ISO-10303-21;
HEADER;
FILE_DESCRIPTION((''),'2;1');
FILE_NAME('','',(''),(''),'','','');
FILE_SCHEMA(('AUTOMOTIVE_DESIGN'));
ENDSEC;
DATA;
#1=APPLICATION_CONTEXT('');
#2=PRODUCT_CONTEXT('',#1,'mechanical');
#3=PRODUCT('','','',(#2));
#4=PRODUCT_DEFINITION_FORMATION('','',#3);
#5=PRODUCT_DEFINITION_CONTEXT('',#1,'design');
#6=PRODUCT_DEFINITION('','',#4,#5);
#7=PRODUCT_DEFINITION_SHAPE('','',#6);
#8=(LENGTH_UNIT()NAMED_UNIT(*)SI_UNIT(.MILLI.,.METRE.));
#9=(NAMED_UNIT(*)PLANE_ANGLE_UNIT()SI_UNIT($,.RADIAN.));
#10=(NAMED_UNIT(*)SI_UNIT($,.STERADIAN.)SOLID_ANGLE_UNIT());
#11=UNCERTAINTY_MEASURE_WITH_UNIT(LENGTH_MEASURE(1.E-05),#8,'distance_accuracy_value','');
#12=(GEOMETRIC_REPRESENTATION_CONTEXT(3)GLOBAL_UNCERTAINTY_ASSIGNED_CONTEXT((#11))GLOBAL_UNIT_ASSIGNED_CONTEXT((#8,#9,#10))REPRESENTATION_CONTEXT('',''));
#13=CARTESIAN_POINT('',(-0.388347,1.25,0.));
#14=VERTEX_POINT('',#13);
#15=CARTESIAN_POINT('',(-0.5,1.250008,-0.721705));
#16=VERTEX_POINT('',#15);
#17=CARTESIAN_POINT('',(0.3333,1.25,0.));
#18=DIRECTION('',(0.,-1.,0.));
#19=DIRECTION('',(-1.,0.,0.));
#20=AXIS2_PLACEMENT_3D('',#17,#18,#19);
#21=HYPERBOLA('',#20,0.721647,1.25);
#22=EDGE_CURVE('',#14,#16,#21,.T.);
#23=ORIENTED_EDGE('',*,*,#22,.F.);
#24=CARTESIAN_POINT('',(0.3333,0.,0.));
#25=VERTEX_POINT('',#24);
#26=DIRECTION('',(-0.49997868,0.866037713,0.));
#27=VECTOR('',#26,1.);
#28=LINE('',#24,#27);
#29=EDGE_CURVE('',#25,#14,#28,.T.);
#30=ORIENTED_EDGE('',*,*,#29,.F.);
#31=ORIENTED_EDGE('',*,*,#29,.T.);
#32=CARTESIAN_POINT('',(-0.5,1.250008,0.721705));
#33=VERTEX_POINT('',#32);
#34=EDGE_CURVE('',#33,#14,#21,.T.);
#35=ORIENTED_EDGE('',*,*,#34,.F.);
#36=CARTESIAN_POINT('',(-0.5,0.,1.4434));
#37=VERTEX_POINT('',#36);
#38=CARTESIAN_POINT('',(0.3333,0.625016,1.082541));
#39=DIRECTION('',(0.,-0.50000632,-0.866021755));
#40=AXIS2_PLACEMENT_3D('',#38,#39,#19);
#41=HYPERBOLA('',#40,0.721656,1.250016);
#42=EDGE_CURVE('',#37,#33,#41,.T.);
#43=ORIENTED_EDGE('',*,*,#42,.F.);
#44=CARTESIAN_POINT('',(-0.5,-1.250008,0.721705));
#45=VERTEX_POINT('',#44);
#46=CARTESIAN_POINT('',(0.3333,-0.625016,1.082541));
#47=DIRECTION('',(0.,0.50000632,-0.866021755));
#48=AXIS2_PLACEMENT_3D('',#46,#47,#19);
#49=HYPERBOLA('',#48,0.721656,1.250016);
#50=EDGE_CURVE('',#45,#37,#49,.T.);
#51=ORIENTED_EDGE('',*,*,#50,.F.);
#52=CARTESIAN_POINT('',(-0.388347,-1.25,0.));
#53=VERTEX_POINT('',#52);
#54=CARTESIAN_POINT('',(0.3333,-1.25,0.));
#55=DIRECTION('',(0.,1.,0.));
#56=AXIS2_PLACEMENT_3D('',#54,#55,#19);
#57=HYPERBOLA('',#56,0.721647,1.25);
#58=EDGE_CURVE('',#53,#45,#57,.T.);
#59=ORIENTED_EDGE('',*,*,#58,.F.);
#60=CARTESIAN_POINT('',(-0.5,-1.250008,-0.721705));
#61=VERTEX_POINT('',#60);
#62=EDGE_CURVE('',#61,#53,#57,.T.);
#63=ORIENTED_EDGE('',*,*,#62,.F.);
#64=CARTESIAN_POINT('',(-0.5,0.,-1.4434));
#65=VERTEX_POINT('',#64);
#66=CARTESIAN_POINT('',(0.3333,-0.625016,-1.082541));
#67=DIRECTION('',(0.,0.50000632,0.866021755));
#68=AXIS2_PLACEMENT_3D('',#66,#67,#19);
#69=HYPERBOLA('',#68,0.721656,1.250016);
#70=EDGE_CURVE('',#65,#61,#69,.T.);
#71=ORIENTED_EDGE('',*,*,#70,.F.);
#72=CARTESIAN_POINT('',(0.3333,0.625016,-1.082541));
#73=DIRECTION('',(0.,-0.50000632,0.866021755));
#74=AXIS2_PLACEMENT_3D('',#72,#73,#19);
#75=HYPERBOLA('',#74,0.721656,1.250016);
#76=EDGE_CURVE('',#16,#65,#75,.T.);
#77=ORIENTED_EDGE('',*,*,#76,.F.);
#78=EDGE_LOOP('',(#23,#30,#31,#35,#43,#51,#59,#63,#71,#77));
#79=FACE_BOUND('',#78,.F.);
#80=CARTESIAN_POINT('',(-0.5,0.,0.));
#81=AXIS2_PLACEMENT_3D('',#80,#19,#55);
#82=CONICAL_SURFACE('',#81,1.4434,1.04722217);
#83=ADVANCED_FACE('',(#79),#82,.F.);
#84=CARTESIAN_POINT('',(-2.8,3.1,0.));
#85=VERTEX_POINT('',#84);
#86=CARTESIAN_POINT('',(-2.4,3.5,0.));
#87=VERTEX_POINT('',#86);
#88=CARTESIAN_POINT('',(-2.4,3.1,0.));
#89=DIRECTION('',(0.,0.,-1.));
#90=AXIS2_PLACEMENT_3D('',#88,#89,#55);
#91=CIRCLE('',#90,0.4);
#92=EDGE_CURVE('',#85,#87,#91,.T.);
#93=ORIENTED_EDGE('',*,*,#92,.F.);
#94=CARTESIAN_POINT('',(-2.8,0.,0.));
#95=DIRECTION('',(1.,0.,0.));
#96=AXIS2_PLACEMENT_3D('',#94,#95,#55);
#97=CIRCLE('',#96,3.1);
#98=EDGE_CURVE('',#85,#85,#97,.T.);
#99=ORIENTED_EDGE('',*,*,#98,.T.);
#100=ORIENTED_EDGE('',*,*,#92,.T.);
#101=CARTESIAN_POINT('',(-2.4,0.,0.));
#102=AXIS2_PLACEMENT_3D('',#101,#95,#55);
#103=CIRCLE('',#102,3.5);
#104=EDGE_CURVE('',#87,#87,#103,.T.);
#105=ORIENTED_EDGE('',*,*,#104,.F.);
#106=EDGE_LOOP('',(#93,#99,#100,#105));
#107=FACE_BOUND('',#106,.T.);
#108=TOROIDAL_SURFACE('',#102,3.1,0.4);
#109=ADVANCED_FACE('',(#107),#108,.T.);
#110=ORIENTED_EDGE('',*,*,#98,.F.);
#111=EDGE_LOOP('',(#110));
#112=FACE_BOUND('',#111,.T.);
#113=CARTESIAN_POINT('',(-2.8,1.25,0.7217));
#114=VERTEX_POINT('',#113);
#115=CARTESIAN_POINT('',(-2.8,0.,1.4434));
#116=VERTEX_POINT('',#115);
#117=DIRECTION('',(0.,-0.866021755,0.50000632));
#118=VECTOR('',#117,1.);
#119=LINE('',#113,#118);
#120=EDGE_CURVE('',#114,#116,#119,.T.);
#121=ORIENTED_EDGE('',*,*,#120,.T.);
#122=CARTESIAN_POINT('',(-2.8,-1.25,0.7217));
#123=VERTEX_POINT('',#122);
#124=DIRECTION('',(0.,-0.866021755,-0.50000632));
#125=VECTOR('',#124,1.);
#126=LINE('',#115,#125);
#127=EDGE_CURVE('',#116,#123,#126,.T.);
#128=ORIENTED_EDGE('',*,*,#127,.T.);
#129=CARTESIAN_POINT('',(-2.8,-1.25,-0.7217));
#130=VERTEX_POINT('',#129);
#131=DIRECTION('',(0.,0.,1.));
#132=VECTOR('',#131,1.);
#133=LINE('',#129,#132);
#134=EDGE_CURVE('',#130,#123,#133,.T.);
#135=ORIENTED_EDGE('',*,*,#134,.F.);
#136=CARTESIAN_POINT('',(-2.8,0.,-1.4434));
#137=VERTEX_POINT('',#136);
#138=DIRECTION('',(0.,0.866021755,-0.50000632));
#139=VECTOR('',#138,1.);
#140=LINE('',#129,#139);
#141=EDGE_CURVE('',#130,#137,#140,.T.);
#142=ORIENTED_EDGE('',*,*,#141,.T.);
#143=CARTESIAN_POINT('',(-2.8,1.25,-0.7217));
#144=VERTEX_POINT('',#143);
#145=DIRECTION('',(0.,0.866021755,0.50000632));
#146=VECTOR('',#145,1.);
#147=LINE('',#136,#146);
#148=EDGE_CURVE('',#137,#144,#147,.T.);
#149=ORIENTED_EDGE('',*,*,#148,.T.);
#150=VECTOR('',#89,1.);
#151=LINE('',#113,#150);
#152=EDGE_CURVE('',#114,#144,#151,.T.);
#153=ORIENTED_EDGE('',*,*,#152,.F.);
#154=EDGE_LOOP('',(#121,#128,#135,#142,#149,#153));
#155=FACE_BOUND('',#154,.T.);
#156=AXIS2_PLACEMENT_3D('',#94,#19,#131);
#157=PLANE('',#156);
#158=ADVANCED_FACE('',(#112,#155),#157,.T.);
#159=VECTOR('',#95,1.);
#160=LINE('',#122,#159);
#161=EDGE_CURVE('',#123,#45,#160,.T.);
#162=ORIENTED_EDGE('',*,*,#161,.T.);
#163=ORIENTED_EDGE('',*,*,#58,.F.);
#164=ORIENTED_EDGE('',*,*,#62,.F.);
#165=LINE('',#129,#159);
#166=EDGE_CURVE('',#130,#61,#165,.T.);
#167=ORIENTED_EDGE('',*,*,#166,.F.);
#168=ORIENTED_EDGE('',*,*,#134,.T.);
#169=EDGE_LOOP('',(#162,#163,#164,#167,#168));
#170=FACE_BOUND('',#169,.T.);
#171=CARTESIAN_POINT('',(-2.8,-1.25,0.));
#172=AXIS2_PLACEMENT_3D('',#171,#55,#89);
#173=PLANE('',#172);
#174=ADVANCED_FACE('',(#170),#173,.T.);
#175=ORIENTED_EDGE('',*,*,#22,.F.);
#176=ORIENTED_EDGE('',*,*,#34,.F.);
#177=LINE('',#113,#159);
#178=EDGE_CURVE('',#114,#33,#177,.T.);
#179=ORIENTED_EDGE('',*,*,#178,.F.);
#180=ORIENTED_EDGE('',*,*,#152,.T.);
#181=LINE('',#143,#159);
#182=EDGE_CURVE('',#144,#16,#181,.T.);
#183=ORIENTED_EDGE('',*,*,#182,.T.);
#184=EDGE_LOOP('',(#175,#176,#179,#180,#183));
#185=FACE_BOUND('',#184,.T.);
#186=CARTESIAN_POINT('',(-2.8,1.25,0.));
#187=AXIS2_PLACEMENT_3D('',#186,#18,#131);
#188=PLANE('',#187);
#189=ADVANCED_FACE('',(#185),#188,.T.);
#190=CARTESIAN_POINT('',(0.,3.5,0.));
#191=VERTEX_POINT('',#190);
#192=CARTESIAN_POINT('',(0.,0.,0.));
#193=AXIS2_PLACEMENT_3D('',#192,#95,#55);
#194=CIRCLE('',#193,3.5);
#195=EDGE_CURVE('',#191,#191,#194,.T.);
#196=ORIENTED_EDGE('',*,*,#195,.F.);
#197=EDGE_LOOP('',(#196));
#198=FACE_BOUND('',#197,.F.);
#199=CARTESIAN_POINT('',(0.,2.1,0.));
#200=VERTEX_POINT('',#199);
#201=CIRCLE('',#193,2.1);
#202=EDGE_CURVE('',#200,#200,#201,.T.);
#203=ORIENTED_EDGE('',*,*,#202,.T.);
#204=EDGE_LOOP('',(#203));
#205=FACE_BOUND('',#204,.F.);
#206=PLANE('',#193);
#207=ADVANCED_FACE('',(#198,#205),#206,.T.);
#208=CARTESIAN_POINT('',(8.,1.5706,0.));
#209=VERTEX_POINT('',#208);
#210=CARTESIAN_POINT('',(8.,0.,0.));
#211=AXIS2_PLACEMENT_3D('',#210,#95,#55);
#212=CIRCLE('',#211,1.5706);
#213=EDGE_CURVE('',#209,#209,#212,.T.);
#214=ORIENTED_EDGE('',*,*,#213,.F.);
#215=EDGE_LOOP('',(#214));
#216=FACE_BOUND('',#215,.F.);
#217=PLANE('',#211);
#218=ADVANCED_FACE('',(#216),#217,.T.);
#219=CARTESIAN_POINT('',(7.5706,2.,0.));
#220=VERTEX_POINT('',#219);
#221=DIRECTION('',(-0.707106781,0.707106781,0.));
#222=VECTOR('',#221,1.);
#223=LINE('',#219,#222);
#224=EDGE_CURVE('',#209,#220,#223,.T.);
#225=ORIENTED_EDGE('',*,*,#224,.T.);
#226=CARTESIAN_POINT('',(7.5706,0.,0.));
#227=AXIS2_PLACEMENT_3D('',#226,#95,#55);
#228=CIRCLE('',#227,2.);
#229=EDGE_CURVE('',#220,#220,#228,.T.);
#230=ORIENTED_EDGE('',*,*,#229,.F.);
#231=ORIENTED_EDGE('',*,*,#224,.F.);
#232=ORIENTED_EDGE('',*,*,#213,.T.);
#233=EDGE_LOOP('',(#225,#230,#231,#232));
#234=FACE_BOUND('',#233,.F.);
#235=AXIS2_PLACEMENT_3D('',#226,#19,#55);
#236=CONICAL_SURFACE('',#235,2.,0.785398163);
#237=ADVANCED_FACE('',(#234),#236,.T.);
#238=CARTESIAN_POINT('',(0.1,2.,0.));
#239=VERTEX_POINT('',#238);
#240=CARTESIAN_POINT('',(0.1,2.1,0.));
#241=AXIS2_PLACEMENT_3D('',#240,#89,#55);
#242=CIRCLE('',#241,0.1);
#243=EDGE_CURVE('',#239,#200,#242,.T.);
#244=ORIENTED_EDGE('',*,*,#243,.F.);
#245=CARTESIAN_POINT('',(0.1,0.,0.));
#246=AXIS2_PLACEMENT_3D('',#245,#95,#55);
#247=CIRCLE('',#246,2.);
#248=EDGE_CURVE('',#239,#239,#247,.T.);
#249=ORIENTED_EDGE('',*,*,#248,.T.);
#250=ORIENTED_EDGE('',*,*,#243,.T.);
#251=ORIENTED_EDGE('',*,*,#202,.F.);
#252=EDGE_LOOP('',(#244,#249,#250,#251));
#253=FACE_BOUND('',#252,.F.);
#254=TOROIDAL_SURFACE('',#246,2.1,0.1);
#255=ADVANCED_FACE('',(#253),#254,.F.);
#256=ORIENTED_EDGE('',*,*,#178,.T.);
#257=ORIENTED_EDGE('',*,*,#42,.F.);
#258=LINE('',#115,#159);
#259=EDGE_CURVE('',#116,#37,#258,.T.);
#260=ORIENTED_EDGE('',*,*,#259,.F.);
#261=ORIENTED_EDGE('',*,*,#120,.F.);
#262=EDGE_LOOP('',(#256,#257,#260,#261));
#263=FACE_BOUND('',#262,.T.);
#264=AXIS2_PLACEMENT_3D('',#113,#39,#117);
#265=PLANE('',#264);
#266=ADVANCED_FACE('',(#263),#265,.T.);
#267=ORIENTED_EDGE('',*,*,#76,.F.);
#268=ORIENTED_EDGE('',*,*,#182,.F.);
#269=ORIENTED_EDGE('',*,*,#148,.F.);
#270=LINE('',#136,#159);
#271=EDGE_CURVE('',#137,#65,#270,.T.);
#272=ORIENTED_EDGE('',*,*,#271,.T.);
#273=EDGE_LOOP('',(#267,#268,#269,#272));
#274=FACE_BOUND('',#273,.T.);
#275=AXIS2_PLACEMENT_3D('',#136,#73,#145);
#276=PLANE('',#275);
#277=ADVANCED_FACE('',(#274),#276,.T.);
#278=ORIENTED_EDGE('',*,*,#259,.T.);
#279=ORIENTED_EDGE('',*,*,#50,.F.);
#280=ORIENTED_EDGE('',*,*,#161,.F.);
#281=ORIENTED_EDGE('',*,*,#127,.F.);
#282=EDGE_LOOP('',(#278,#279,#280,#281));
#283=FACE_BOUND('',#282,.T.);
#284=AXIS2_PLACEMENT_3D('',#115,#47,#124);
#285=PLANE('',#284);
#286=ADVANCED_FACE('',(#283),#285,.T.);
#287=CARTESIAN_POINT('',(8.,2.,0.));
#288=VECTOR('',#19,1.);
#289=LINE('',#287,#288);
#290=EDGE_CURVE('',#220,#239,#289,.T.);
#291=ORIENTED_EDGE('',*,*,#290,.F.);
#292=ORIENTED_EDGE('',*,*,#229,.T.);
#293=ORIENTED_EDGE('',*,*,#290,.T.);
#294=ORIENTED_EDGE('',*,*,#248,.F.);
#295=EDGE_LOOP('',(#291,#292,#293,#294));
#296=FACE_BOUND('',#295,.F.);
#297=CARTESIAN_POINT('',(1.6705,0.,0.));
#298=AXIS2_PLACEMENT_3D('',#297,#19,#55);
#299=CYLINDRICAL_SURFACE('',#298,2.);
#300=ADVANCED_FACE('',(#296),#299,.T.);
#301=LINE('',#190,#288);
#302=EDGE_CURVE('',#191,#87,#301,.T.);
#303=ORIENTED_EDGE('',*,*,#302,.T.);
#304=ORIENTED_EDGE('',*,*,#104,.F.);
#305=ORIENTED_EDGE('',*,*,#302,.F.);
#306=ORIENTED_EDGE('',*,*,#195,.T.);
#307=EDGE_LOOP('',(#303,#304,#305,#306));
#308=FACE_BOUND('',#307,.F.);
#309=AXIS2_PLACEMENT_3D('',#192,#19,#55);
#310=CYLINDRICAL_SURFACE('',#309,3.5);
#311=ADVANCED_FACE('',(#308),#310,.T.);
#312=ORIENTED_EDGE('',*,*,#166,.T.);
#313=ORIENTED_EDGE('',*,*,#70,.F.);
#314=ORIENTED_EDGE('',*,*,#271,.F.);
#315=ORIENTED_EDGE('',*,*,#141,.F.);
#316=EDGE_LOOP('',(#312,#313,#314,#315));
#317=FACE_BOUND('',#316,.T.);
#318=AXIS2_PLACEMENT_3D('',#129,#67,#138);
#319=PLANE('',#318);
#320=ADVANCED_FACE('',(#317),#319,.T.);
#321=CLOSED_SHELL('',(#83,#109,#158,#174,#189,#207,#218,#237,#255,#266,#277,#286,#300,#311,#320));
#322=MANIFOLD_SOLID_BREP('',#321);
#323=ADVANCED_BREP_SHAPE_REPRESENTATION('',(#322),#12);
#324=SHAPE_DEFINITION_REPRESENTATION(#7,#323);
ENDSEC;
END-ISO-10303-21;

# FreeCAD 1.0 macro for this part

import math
import FreeCAD as App
import Part
import Sketcher
Q = App.Units.Quantity


def edges_at(feature, points):
    """Names of the edges that pass closest to the given points."""
    edges = feature.Shape.Edges
    near = lambda p: min(range(len(edges)), key=lambda i: edges[i].distToShape(Part.Vertex(*p))[0])
    return sorted({f"Edge{near(p) + 1}" for p in points})


def add_polygon(sketch, points):
    """Adds a closed chain of lines whose ends are joined by coincident constraints."""
    first, n = sketch.GeometryCount, len(points)
    for a, b in zip(points, points[1:] + points[:1]):
        sketch.addGeometry(Part.LineSegment(App.Vector(*a, 0), App.Vector(*b, 0)), False)
    for i in range(n):
        sketch.addConstraint(Sketcher.Constraint("Coincident", first + i, 2, first + (i + 1) % n, 1))

doc = App.newDocument("Part")
body = doc.addObject("PartDesign::Body", "Body")

# Sketch on XY plane
sketch1 = body.newObject("Sketcher::SketchObject", "Sketch")
sketch1.AttachmentSupport = (doc.getObject("XY_Plane"), [""])
sketch1.MapMode = "FlatFace"
add_polygon(sketch1, [(0.3, 0), (8, 0), (8, 2), (0, 2), (0, 3.5), (-2.8, 3.5), (-2.8, 1.4), (-0.5, 1.4)])  # lines 0-7
sketch1.addConstraint([
    Sketcher.Constraint("Horizontal", 0),
    Sketcher.Constraint("Vertical", 1),
    Sketcher.Constraint("Horizontal", 2),
    Sketcher.Constraint("Vertical", 3),
    Sketcher.Constraint("Horizontal", 4),
    Sketcher.Constraint("Vertical", 5),
    Sketcher.Constraint("Horizontal", 6),
    Sketcher.Constraint("PointOnObject", 0, 2, -1),
    Sketcher.Constraint("PointOnObject", 2, 2, -2),
    Sketcher.Constraint("DistanceX", 2, 2, 2, 1, 8.0),
    Sketcher.Constraint("DistanceX", 4, 2, 4, 1, 2.8),
    Sketcher.Constraint("DistanceX", 6, 1, 6, 2, 2.3),
    Sketcher.Constraint("DistanceY", 1, 1, 1, 2, 2.0),
    Sketcher.Constraint("DistanceY", 3, 1, 3, 2, 1.5),
    Sketcher.Constraint("DistanceX", 0, 1, 0, 2, 7.6667),
    Sketcher.Constraint("DistanceY", 5, 2, 5, 1, 2.0566),
])
revolution = body.newObject("PartDesign::Revolution", "Revolution")
revolution.Profile = sketch1
revolution.ReferenceAxis = (sketch1, ["H_Axis"])
revolution.Angle = 360

# Sketch on YZ plane
sketch2 = body.newObject("Sketcher::SketchObject", "Sketch001")
sketch2.AttachmentSupport = (doc.getObject("YZ_Plane"), [""])
sketch2.MapMode = "FlatFace"
sketch2.AttachmentOffset = App.Placement(App.Vector(0, 0, -2.8), App.Rotation())
sketch2.addGeometry([
    Part.LineSegment(App.Vector(1.2, 0.7, 0), App.Vector(0, 1.4, 0)),  # 0
    Part.ArcOfCircle(Part.Circle(App.Vector(0, 0, 0), App.Vector(0, 0, 1), 1.4), math.radians(30), math.radians(90)),  # 1
    Part.ArcOfCircle(Part.Circle(App.Vector(0, 0, 0), App.Vector(0, 0, 1), 1.4), math.radians(90), math.radians(150)),  # 2
    Part.LineSegment(App.Vector(0, 1.4, 0), App.Vector(-1.2, 0.7, 0)),  # 3
    Part.ArcOfCircle(Part.Circle(App.Vector(0, 0, 0), App.Vector(0, 0, 1), 1.4), math.radians(-30), math.radians(30)),  # 4
    Part.LineSegment(App.Vector(1.2, 0.7, 0), App.Vector(1.2, -0.7, 0)),  # 5
    Part.LineSegment(App.Vector(-1.2, 0.7, 0), App.Vector(-1.2, -0.7, 0)),  # 6
    Part.ArcOfCircle(Part.Circle(App.Vector(0, 0, 0), App.Vector(0, 0, 1), 1.4), math.radians(150), math.radians(210)),  # 7
    Part.LineSegment(App.Vector(-1.2, -0.7, 0), App.Vector(0, -1.4, 0)),  # 8
    Part.ArcOfCircle(Part.Circle(App.Vector(0, 0, 0), App.Vector(0, 0, 1), 1.4), math.radians(-150), math.radians(-90)),  # 9
    Part.ArcOfCircle(Part.Circle(App.Vector(0, 0, 0), App.Vector(0, 0, 1), 1.4), math.radians(-90), math.radians(-30)),  # 10
    Part.LineSegment(App.Vector(0, -1.4, 0), App.Vector(1.2, -0.7, 0)),  # 11
], False)
sketch2.addConstraint([
    Sketcher.Constraint("Coincident", 0, 1, 1, 1),
    Sketcher.Constraint("Coincident", 1, 2, 0, 2),
    Sketcher.Constraint("Coincident", 2, 1, 3, 1),
    Sketcher.Constraint("Coincident", 3, 2, 2, 2),
    Sketcher.Constraint("Coincident", 4, 1, 5, 2),
    Sketcher.Constraint("Coincident", 5, 1, 4, 2),
    Sketcher.Constraint("Coincident", 6, 1, 7, 1),
    Sketcher.Constraint("Coincident", 7, 2, 6, 2),
    Sketcher.Constraint("Coincident", 8, 1, 9, 1),
    Sketcher.Constraint("Coincident", 9, 2, 8, 2),
    Sketcher.Constraint("Coincident", 10, 1, 11, 1),
    Sketcher.Constraint("Coincident", 11, 2, 10, 2),
    Sketcher.Constraint("Vertical", 5),
    Sketcher.Constraint("Vertical", 6),
    Sketcher.Constraint("Coincident", 1, 3, -1, 1),
    Sketcher.Constraint("Coincident", 2, 3, -1, 1),
    Sketcher.Constraint("Coincident", 4, 3, -1, 1),
    Sketcher.Constraint("Coincident", 7, 3, -1, 1),
    Sketcher.Constraint("Coincident", 9, 3, -1, 1),
    Sketcher.Constraint("Coincident", 10, 3, -1, 1),
    Sketcher.Constraint("Coincident", 2, 1, 1, 2),
    Sketcher.Constraint("Coincident", 5, 1, 0, 1),
    Sketcher.Constraint("Coincident", 6, 1, 3, 2),
    Sketcher.Constraint("Coincident", 8, 1, 7, 2),
    Sketcher.Constraint("Coincident", 10, 1, 9, 2),
    Sketcher.Constraint("PointOnObject", 1, 2, -2),
    Sketcher.Constraint("PointOnObject", 9, 2, -2),
    Sketcher.Constraint("Parallel", 0, 8),
    Sketcher.Constraint("Parallel", 3, 11),
    Sketcher.Constraint("Angle", 0, Q("149.9996 deg")),
    Sketcher.Constraint("Radius", 1, 1.4434),
])
pad1 = body.newObject("PartDesign::Pad", "Pad")
pad1.Profile = sketch2
pad1.Type = "UpToFirst"
doc.recompute()

fillet = body.newObject("PartDesign::Fillet", "Fillet")
fillet.Base = (pad1, edges_at(pad1, [(-2.8, -3.5, 0)]))
fillet.Radius = 0.4
doc.recompute()

chamfer = body.newObject("PartDesign::Chamfer", "Chamfer")
chamfer.Base = (fillet, edges_at(fillet, [(8, -2, 0)]))
chamfer.ChamferType = "Two distances"
chamfer.Size = 0.4294
chamfer.Size2 = 0.4294
doc.recompute()

fillet2 = body.newObject("PartDesign::Fillet", "Fillet001")
fillet2.Base = (chamfer, edges_at(chamfer, [(0, -2, 0)]))
fillet2.Radius = 0.1

doc.recompute()
